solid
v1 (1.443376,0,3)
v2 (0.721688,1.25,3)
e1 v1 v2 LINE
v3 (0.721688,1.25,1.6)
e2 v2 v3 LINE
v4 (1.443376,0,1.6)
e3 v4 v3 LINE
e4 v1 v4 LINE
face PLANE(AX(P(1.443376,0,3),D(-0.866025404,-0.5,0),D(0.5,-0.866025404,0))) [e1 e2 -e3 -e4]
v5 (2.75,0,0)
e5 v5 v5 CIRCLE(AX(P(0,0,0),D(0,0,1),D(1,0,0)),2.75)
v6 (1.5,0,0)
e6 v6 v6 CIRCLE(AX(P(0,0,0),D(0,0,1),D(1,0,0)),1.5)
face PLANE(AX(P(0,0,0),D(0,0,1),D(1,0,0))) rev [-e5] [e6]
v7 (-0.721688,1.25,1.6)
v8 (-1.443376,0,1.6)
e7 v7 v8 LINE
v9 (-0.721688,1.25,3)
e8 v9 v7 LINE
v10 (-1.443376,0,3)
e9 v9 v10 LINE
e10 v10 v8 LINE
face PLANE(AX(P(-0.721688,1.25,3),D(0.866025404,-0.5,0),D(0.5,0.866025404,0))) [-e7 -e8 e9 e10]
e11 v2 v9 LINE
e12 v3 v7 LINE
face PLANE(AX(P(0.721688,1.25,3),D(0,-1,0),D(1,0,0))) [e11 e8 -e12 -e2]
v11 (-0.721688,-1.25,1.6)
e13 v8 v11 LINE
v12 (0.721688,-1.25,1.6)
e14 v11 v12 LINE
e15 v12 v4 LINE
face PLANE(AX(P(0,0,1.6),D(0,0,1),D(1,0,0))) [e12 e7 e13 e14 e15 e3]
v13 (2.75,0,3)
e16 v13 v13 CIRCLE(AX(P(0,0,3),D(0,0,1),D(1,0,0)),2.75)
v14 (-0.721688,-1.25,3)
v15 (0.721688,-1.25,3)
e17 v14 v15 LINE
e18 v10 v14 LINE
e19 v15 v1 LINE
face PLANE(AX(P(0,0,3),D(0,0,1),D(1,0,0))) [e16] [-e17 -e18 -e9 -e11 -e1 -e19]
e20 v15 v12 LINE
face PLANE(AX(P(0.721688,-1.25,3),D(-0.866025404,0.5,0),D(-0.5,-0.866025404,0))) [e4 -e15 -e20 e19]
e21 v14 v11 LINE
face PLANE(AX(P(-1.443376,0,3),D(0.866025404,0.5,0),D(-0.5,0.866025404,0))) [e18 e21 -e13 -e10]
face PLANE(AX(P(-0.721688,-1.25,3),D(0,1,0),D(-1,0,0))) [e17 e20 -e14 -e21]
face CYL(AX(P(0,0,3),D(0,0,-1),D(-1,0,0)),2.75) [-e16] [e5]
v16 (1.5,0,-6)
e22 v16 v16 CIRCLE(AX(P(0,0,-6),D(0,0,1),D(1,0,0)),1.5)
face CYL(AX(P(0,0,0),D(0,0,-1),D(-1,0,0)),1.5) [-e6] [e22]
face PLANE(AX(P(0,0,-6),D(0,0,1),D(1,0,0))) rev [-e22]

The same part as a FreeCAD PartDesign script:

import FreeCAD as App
import Part
import Sketcher
Q = App.Units.Quantity


def add_polygon(sketch, points):
    """Adds a closed chain of lines whose ends are joined by coincident constraints."""
    first, n = sketch.GeometryCount, len(points)
    for a, b in zip(points, points[1:] + points[:1]):
        sketch.addGeometry(Part.LineSegment(App.Vector(*a, 0), App.Vector(*b, 0)), False)
    for i in range(n):
        sketch.addConstraint(Sketcher.Constraint("Coincident", first + i, 2, first + (i + 1) % n, 1))

doc = App.newDocument("Part")
body = doc.addObject("PartDesign::Body", "Body")

# Sketch on XY plane
sketch1 = doc.addObject("Sketcher::SketchObject", "Sketch")
body.addObject(sketch1)
sketch1.AttachmentSupport = (doc.XY_Plane, [""])
sketch1.MapMode = "FlatFace"
sketch1.addGeometry(Part.Circle(App.Vector(0, 0, 0), App.Vector(0, 0, 1), 2.8), False)
sketch1.addConstraint([
    Sketcher.Constraint("Coincident", 0, 3, -1, 1),
    Sketcher.Constraint("Diameter", 0, Q("5.5 mm")),
])
pad1 = doc.addObject("PartDesign::Pad", "Pad")
body.addObject(pad1)
pad1.Profile = sketch1
pad1.Length = 3

# Sketch on XY plane
sketch2 = doc.addObject("Sketcher::SketchObject", "Sketch001")
body.addObject(sketch2)
sketch2.AttachmentSupport = (doc.XY_Plane, [""])
sketch2.MapMode = "FlatFace"
sketch2.AttachmentOffset = App.Placement(App.Vector(0, 0, -6), App.Rotation())
sketch2.addGeometry(Part.Circle(App.Vector(0, 0, 0), App.Vector(0, 0, 1), 1.5), False)
sketch2.addConstraint([
    Sketcher.Constraint("Coincident", 0, 3, -1, 1),
    Sketcher.Constraint("Diameter", 0, Q("3 mm")),
])
pad2 = doc.addObject("PartDesign::Pad", "Pad001")
body.addObject(pad2)
pad2.Profile = sketch2
pad2.Length = 6

# Sketch on XY plane
sketch3 = doc.addObject("Sketcher::SketchObject", "Sketch002")
body.addObject(sketch3)
sketch3.AttachmentSupport = (doc.XY_Plane, [""])
sketch3.MapMode = "FlatFace"
sketch3.AttachmentOffset = App.Placement(App.Vector(0, 0, 1.6), App.Rotation())
add_polygon(sketch3, [(1.4, 0), (0.7, 1.2), (-0.7, 1.2), (-1.4, 0), (-0.7, -1.2), (0.7, -1.2)])  # lines 0-5
sketch3.addConstraint([
    Sketcher.Constraint("Horizontal", 1),
    Sketcher.Constraint("Horizontal", 4),
    Sketcher.Constraint("Symmetric", 0, 2, 3, 2, -1, 1),
    Sketcher.Constraint("Symmetric", 2, 2, 5, 2, -1, 1),
    Sketcher.Constraint("PointOnObject", 2, 2, -1),
    Sketcher.Constraint("Parallel", 2, 5),
    Sketcher.Constraint("Vertical", 1, 2, 3, 2),
    Sketcher.Constraint("Angle", 0, Q("120 deg")),
    Sketcher.Constraint("DistanceY", 3, 2, 1, 2, Q("2.5 mm")),
    Sketcher.Constraint("DistanceX", 1, 2, 1, 1, Q("1.443376 mm")),
])
pocket1 = doc.addObject("PartDesign::Pocket", "Pocket")
body.addObject(pocket1)
pocket1.Profile = sketch3
pocket1.Length = 1.4
pocket1.Reversed = True

doc.recompute()
